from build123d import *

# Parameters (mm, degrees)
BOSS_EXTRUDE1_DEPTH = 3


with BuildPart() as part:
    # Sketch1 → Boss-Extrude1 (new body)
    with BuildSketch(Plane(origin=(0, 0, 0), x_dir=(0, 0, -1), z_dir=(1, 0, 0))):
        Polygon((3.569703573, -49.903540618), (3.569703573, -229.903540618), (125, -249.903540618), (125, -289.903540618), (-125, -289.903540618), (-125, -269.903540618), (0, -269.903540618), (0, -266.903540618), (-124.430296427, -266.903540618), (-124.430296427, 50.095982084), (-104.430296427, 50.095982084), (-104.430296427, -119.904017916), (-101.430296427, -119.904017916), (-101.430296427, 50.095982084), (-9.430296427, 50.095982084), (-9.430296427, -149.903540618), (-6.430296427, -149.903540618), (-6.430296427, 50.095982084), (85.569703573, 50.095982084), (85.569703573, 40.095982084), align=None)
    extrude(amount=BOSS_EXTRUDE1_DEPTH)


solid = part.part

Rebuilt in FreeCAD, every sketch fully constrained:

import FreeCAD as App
import Part
import Sketcher
from FreeCAD import Vector
Q = App.Units.Quantity


def add_polygon(sketch, points):
    """Adds a closed chain of lines whose ends are joined by coincident constraints."""
    first, n = sketch.GeometryCount, len(points)
    for a, b in zip(points, points[1:] + points[:1]):
        sketch.addGeometry(Part.LineSegment(App.Vector(*a, 0), App.Vector(*b, 0)), False)
    for i in range(n):
        sketch.addConstraint(Sketcher.Constraint("Coincident", first + i, 2, first + (i + 1) % n, 1))

doc = App.newDocument("Part")
body = doc.addObject("PartDesign::Body", "Body")

# Sketch on YZ plane
sketch1 = body.newObject("Sketcher::SketchObject", "Sketch")
sketch1.AttachmentSupport = (doc.getObject("YZ_Plane"), [""])
sketch1.MapMode = "FlatFace"
add_polygon(sketch1, [(-229.9, -3.6), (-49.9, -3.6), (40.1, -85.6), (50.1, -85.6), (50.1, 6.4), (-149.9, 6.4), (-149.9, 9.4), (50.1, 9.4), (50.1, 101.4), (-119.9, 101.4), (-119.9, 104.4), (50.1, 104.4), (50.1, 124.4), (-266.9, 124.4), (-266.9, 0), (-269.9, 0), (-269.9, 125), (-289.9, 125), (-289.9, -125), (-249.9, -125)])  # lines 0-19
sketch1.addConstraint([
    Sketcher.Constraint("Horizontal", 0),
    Sketcher.Constraint("Horizontal", 2),
    Sketcher.Constraint("Vertical", 3),
    Sketcher.Constraint("Horizontal", 4),
    Sketcher.Constraint("Vertical", 5),
    Sketcher.Constraint("Horizontal", 6),
    Sketcher.Constraint("Vertical", 7),
    Sketcher.Constraint("Horizontal", 8),
    Sketcher.Constraint("Vertical", 9),
    Sketcher.Constraint("Horizontal", 10),
    Sketcher.Constraint("Vertical", 11),
    Sketcher.Constraint("Horizontal", 12),
    Sketcher.Constraint("Vertical", 13),
    Sketcher.Constraint("Horizontal", 14),
    Sketcher.Constraint("Vertical", 15),
    Sketcher.Constraint("Horizontal", 16),
    Sketcher.Constraint("Vertical", 17),
    Sketcher.Constraint("Horizontal", 18),
    Sketcher.Constraint("PointOnObject", 13, 2, -1),
    Sketcher.Constraint("Vertical", 3, 2, 6, 2),
    Sketcher.Constraint("Vertical", 7, 2, 10, 2),
    Sketcher.Constraint("Equal", 14, 5),
    Sketcher.Constraint("Equal", 3, 7),
    Sketcher.Constraint("Equal", 5, 9),
    Sketcher.Constraint("Equal", 16, 11),
    Sketcher.Constraint("DistanceX", 0, 1, 0, 2, Q("180 mm")),
    Sketcher.Constraint("DistanceX", 2, 1, 2, 2, Q("10 mm")),
    Sketcher.Constraint("DistanceX", 8, 2, 8, 1, Q("170 mm")),
    Sketcher.Constraint("DistanceX", 14, 2, 14, 1, Q("3 mm")),
    Sketcher.Constraint("DistanceX", 16, 2, 16, 1, Q("20 mm")),
    Sketcher.Constraint("DistanceX", 18, 1, 18, 2, Q("40 mm")),
    Sketcher.Constraint("DistanceY", 3, 1, 3, 2, Q("92 mm")),
    Sketcher.Constraint("DistanceY", 15, 1, 15, 2, Q("125 mm")),
    Sketcher.Constraint("DistanceY", 17, 2, 17, 1, Q("250 mm")),
    Sketcher.Constraint("DistanceY", 1, 2, 0, 2, Q("82 mm")),
    Sketcher.Constraint("DistanceX", 4, 2, 0, 2, Q("100 mm")),
    Sketcher.Constraint("DistanceX", 12, 2, 5, 2, Q("117 mm")),
    Sketcher.Constraint("Distance", 19, Q("123.066311 mm")),
    Sketcher.Constraint("DistanceX", 4, 2, 4, 1, Q("199.999523 mm")),
    Sketcher.Constraint("DistanceX", 0, 2, -1, 1, Q("49.903541 mm")),
])
pad1 = body.newObject("PartDesign::Pad", "Pad")
pad1.Profile = sketch1
pad1.Length = 3

doc.recompute()
